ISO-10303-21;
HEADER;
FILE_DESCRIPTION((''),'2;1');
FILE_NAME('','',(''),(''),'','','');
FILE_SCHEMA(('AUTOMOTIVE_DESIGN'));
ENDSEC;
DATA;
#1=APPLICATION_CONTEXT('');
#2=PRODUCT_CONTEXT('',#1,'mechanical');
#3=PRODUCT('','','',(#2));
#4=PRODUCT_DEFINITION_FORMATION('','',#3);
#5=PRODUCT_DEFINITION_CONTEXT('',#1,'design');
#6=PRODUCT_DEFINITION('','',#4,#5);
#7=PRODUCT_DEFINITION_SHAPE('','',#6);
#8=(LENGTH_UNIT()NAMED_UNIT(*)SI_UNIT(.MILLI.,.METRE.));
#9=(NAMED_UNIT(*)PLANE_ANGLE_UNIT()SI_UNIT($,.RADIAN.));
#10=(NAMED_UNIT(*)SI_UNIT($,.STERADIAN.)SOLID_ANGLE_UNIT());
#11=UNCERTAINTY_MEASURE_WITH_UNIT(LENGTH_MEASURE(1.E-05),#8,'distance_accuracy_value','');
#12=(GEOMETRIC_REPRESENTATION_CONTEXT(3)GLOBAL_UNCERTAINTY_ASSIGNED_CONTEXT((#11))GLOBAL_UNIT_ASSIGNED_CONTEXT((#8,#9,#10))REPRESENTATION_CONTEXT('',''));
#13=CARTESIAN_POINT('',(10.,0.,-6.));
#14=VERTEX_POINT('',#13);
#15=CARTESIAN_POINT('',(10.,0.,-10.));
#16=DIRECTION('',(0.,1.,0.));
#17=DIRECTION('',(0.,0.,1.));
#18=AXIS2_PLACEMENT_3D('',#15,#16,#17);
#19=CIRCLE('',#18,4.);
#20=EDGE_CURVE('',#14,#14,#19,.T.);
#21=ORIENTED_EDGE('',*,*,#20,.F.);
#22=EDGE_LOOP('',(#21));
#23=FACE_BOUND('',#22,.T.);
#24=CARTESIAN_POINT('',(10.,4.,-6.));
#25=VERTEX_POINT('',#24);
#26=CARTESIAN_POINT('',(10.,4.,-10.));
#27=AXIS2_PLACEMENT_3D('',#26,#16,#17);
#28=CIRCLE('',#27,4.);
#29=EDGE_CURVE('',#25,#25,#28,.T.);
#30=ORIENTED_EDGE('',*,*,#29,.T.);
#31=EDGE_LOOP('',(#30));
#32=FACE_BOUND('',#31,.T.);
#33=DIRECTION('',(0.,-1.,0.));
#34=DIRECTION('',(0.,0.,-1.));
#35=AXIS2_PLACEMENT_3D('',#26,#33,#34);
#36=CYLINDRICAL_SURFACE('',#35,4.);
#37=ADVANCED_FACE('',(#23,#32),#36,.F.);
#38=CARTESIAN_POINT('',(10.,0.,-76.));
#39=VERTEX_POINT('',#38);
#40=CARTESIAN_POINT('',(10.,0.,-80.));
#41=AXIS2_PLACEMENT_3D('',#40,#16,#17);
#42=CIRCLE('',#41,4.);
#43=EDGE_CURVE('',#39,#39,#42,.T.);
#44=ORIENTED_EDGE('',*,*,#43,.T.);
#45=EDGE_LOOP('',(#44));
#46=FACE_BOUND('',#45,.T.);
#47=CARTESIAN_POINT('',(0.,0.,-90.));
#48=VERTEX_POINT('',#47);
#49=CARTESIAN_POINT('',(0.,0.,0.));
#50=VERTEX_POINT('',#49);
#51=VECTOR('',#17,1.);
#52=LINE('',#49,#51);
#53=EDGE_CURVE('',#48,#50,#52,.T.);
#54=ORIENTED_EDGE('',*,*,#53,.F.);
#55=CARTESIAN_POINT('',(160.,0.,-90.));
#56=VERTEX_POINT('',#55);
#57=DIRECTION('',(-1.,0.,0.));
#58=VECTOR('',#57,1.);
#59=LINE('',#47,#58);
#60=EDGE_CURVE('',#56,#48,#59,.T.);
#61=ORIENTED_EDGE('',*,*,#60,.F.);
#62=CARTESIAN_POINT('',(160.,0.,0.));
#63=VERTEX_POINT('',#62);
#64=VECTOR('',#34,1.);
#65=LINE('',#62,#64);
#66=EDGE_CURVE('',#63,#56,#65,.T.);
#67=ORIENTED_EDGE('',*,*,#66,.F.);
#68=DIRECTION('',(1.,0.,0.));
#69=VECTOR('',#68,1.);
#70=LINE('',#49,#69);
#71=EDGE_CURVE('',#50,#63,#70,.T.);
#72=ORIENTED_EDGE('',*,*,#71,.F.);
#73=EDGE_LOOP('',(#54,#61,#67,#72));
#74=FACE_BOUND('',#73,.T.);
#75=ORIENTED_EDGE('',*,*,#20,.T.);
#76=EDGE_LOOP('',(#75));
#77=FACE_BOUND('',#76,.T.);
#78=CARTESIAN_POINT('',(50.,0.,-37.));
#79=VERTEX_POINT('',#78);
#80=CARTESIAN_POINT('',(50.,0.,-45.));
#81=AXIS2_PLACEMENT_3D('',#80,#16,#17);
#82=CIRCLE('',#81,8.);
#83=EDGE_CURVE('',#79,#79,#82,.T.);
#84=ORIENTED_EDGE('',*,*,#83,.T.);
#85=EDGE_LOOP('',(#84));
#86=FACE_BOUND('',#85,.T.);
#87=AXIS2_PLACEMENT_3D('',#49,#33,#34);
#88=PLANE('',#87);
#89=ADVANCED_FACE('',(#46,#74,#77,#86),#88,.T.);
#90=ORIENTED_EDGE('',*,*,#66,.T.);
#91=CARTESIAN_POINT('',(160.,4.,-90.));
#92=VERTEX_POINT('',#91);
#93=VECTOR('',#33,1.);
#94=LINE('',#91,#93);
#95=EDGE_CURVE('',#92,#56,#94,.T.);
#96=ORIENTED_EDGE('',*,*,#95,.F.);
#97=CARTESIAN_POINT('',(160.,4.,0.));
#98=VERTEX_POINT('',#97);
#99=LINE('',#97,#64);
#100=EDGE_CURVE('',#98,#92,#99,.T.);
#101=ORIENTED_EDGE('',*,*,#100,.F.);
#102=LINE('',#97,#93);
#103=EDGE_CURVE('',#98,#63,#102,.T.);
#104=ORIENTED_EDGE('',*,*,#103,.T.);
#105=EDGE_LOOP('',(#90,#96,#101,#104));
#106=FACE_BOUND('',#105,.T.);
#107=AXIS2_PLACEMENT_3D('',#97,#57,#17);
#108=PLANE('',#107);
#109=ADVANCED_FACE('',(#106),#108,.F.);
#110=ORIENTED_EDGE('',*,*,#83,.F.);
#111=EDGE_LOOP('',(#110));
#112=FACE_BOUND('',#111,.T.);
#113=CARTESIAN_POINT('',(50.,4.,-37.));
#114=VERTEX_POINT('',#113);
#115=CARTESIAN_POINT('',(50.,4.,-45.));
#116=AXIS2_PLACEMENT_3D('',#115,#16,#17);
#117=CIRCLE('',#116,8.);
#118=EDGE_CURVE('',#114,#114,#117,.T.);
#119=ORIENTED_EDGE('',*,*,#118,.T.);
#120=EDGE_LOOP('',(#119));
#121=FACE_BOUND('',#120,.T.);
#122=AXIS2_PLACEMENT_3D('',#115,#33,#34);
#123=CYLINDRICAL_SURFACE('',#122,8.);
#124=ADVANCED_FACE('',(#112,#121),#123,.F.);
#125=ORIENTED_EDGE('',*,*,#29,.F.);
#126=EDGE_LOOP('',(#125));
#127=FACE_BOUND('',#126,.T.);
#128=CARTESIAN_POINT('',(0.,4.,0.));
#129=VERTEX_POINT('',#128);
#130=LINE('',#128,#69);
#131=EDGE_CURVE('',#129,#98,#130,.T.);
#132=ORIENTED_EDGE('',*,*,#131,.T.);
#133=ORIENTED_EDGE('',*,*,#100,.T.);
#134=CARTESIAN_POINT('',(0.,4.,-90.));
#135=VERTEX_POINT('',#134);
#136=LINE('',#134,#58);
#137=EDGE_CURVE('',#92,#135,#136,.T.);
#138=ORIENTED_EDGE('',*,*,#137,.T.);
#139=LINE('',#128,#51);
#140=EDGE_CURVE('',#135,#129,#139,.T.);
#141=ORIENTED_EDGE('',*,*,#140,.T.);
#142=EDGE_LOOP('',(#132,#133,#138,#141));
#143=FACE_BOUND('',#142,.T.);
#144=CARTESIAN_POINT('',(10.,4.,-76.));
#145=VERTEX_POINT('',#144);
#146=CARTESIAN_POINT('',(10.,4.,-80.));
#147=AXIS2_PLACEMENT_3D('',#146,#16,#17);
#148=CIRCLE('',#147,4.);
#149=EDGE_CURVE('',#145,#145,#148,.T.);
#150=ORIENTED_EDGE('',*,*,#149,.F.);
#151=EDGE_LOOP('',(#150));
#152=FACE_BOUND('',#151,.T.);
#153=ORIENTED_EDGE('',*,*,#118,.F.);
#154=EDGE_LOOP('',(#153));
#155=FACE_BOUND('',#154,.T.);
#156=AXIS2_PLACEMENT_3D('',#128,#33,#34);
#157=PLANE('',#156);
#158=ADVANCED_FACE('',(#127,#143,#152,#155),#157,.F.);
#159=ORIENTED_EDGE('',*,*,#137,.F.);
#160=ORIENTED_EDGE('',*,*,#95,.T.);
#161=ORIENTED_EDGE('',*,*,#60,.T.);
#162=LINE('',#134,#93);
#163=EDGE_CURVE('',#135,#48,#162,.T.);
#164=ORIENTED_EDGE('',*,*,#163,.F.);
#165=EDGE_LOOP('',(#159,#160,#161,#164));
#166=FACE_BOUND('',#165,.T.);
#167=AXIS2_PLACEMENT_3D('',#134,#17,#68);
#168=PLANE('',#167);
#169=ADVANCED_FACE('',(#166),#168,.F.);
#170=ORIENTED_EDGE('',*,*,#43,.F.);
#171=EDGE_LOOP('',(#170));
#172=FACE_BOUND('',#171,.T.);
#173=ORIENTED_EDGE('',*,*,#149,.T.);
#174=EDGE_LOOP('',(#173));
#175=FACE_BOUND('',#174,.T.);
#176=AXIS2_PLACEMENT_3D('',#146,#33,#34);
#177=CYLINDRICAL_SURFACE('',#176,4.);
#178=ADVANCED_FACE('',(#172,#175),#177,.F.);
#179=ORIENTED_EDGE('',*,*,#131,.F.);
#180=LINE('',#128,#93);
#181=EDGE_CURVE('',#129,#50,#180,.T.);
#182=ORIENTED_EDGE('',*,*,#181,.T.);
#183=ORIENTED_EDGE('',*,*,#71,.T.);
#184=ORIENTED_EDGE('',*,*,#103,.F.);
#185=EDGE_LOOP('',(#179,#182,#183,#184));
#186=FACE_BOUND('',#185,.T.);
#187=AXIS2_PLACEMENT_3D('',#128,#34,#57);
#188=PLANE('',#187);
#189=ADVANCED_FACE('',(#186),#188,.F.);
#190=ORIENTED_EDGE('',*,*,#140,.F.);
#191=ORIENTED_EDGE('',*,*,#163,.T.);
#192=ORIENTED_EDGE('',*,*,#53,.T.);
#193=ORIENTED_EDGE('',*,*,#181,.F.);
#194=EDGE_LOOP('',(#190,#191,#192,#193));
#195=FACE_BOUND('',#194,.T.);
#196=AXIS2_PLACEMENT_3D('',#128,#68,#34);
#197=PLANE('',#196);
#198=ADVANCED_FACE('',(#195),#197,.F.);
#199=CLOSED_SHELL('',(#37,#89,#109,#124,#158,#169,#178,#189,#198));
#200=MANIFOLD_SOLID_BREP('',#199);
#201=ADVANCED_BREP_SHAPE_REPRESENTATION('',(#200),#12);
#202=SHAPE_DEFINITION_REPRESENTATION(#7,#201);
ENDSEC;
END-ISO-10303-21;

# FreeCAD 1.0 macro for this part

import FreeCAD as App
import Part
import Sketcher

V = App.Vector
Q = App.Units.Quantity


def add_polygon(sketch, points):
    """Adds a closed chain of lines whose ends are joined by coincident constraints."""
    first, n = sketch.GeometryCount, len(points)
    for a, b in zip(points, points[1:] + points[:1]):
        sketch.addGeometry(Part.LineSegment(App.Vector(*a, 0), App.Vector(*b, 0)), False)
    for i in range(n):
        sketch.addConstraint(Sketcher.Constraint("Coincident", first + i, 2, first + (i + 1) % n, 1))

doc = App.newDocument("Part")
body = doc.addObject("PartDesign::Body", "Body")

# Sketch on XZ plane
sketch1 = body.newObject("Sketcher::SketchObject", "Sketch")
sketch1.AttachmentSupport = (doc.getObject("XZ_Plane"), [""])
sketch1.MapMode = "FlatFace"
add_polygon(sketch1, [(0, -90), (0, 0), (160, 0), (160, -90)])  # lines 0-3
sketch1.addGeometry(Part.Circle(V(10, -10, 0), V(0, 0, 1), 4), False)  # 4
sketch1.addGeometry(Part.Circle(V(10, -80, 0), V(0, 0, 1), 4), False)  # 5
sketch1.addGeometry(Part.Circle(V(50, -45, 0), V(0, 0, 1), 8), False)  # 6
sketch1.addConstraint([
    Sketcher.Constraint("Vertical", 0),
    Sketcher.Constraint("Horizontal", 1),
    Sketcher.Constraint("Vertical", 2),
    Sketcher.Constraint("Horizontal", 3),
    Sketcher.Constraint("Coincident", 0, 2, -1, 1),
    Sketcher.Constraint("Equal", 4, 5),
    Sketcher.Constraint("Vertical", 4, 3, 5, 3),
    Sketcher.Constraint("Diameter", 4, Q("8 mm")),
    Sketcher.Constraint("Diameter", 6, Q("16 mm")),
    Sketcher.Constraint("DistanceX", 1, 1, 1, 2, Q("160 mm")),
    Sketcher.Constraint("DistanceY", 0, 1, 0, 2, Q("90 mm")),
    Sketcher.Constraint("DistanceX", -1, 1, 4, 3, Q("10 mm")),
    Sketcher.Constraint("DistanceY", 4, 3, -1, 1, Q("10 mm")),
    Sketcher.Constraint("DistanceY", 5, 3, -1, 1, Q("80 mm")),
    Sketcher.Constraint("DistanceX", -1, 1, 6, 3, Q("50 mm")),
    Sketcher.Constraint("DistanceY", 6, 3, -1, 1, Q("45 mm")),
])
pad1 = body.newObject("PartDesign::Pad", "Pad")
pad1.Profile = sketch1
pad1.Length = 4
pad1.Reversed = True

doc.recompute()
